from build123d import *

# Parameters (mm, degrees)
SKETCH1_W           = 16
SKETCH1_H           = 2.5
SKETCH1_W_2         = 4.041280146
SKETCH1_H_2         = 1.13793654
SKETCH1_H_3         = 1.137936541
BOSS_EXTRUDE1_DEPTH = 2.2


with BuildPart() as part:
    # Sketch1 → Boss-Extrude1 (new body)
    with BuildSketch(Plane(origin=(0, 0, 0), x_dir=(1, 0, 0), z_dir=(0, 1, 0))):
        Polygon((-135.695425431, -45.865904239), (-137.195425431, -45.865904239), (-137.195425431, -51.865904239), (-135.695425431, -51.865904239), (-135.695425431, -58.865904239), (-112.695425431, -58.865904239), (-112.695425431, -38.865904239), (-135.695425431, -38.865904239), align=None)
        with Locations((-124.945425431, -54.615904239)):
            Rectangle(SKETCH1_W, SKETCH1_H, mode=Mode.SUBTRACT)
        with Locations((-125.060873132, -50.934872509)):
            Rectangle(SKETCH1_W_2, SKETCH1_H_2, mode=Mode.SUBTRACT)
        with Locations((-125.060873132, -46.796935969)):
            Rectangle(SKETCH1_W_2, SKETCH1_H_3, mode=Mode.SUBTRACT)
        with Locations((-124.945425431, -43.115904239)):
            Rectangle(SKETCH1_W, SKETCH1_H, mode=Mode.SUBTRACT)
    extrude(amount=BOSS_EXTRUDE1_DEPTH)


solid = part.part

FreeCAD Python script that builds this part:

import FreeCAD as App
import Part
import Sketcher
Q = App.Units.Quantity


def add_polygon(sketch, points):
    """Adds a closed chain of lines whose ends are joined by coincident constraints."""
    first, n = sketch.GeometryCount, len(points)
    for a, b in zip(points, points[1:] + points[:1]):
        sketch.addGeometry(Part.LineSegment(App.Vector(*a, 0), App.Vector(*b, 0)), False)
    for i in range(n):
        sketch.addConstraint(Sketcher.Constraint("Coincident", first + i, 2, first + (i + 1) % n, 1))

doc = App.newDocument("Part")
body = doc.addObject("PartDesign::Body", "Body")

# Sketch on XZ plane
sketch1 = doc.addObject("Sketcher::SketchObject", "Sketch")
body.addObject(sketch1)
sketch1.AttachmentSupport = (doc.XZ_Plane, [""])
sketch1.MapMode = "FlatFace"
add_polygon(sketch1, [(-135.7, 45.9), (-137.2, 45.9), (-137.2, 51.9), (-135.7, 51.9), (-135.7, 58.9), (-112.7, 58.9), (-112.7, 38.9), (-135.7, 38.9)])  # lines 0-7
add_polygon(sketch1, [(-123, 51.5), (-127.1, 51.5), (-127.1, 50.4), (-123, 50.4)])  # lines 8-11
add_polygon(sketch1, [(-116.9, 55.9), (-132.9, 55.9), (-132.9, 53.4), (-116.9, 53.4)])  # lines 12-15
add_polygon(sketch1, [(-123, 47.4), (-127.1, 47.4), (-127.1, 46.2), (-123, 46.2)])  # lines 16-19
add_polygon(sketch1, [(-116.9, 44.4), (-132.9, 44.4), (-132.9, 41.9), (-116.9, 41.9)])  # lines 20-23
sketch1.addConstraint([
    Sketcher.Constraint("Horizontal", 0),
    Sketcher.Constraint("Vertical", 1),
    Sketcher.Constraint("Horizontal", 2),
    Sketcher.Constraint("Vertical", 3),
    Sketcher.Constraint("Horizontal", 4),
    Sketcher.Constraint("Vertical", 5),
    Sketcher.Constraint("Horizontal", 6),
    Sketcher.Constraint("Vertical", 7),
    Sketcher.Constraint("Horizontal", 8),
    Sketcher.Constraint("Vertical", 9),
    Sketcher.Constraint("Horizontal", 10),
    Sketcher.Constraint("Vertical", 11),
    Sketcher.Constraint("Horizontal", 12),
    Sketcher.Constraint("Vertical", 13),
    Sketcher.Constraint("Horizontal", 14),
    Sketcher.Constraint("Vertical", 15),
    Sketcher.Constraint("Horizontal", 16),
    Sketcher.Constraint("Vertical", 17),
    Sketcher.Constraint("Horizontal", 18),
    Sketcher.Constraint("Vertical", 19),
    Sketcher.Constraint("Horizontal", 20),
    Sketcher.Constraint("Vertical", 21),
    Sketcher.Constraint("Horizontal", 22),
    Sketcher.Constraint("Vertical", 23),
    Sketcher.Constraint("Vertical", 3, 2, 6, 2),
    Sketcher.Constraint("Vertical", 9, 2, 16, 2),
    Sketcher.Constraint("Vertical", 11, 2, 18, 2),
    Sketcher.Constraint("Vertical", 13, 2, 20, 2),
    Sketcher.Constraint("Vertical", 15, 2, 22, 2),
    Sketcher.Constraint("Equal", 3, 7),
    Sketcher.Constraint("Equal", 11, 17),
    Sketcher.Constraint("Equal", 15, 21),
    Sketcher.Constraint("DistanceX", 4, 1, 4, 2, Q("23 mm")),
    Sketcher.Constraint("DistanceX", 12, 2, 12, 1, Q("16 mm")),
    Sketcher.Constraint("DistanceY", 1, 1, 1, 2, Q("6 mm")),
    Sketcher.Constraint("DistanceY", 3, 1, 3, 2, Q("7 mm")),
    Sketcher.Constraint("DistanceX", 0, 2, 0, 1, Q("1.5 mm")),
    Sketcher.Constraint("DistanceY", 13, 2, 13, 1, Q("2.5 mm")),
    Sketcher.Constraint("DistanceY", 12, 2, 3, 2, Q("3 mm")),
    Sketcher.Constraint("DistanceY", 10, 2, 14, 2, Q("3 mm")),
    Sketcher.Constraint("DistanceY", 16, 2, 9, 2, Q("3 mm")),
    Sketcher.Constraint("DistanceY", 20, 2, 16, 2, Q("3 mm")),
    Sketcher.Constraint("DistanceX", 3, 2, 12, 2, Q("2.75 mm")),
    Sketcher.Constraint("DistanceX", 8, 2, 8, 1, Q("4.04128 mm")),
    Sketcher.Constraint("DistanceY", 9, 2, 9, 1, Q("1.137937 mm")),
    Sketcher.Constraint("DistanceY", -1, 1, 8, 2, Q("51.503841 mm")),
    Sketcher.Constraint("DistanceX", 0, 2, -1, 1, Q("137.195425 mm")),
    Sketcher.Constraint("DistanceX", 8, 2, -1, 1, Q("127.081513 mm")),
])
pad1 = doc.addObject("PartDesign::Pad", "Pad")
body.addObject(pad1)
pad1.Profile = sketch1
pad1.Length = 2.2
pad1.Reversed = True

doc.recompute()
